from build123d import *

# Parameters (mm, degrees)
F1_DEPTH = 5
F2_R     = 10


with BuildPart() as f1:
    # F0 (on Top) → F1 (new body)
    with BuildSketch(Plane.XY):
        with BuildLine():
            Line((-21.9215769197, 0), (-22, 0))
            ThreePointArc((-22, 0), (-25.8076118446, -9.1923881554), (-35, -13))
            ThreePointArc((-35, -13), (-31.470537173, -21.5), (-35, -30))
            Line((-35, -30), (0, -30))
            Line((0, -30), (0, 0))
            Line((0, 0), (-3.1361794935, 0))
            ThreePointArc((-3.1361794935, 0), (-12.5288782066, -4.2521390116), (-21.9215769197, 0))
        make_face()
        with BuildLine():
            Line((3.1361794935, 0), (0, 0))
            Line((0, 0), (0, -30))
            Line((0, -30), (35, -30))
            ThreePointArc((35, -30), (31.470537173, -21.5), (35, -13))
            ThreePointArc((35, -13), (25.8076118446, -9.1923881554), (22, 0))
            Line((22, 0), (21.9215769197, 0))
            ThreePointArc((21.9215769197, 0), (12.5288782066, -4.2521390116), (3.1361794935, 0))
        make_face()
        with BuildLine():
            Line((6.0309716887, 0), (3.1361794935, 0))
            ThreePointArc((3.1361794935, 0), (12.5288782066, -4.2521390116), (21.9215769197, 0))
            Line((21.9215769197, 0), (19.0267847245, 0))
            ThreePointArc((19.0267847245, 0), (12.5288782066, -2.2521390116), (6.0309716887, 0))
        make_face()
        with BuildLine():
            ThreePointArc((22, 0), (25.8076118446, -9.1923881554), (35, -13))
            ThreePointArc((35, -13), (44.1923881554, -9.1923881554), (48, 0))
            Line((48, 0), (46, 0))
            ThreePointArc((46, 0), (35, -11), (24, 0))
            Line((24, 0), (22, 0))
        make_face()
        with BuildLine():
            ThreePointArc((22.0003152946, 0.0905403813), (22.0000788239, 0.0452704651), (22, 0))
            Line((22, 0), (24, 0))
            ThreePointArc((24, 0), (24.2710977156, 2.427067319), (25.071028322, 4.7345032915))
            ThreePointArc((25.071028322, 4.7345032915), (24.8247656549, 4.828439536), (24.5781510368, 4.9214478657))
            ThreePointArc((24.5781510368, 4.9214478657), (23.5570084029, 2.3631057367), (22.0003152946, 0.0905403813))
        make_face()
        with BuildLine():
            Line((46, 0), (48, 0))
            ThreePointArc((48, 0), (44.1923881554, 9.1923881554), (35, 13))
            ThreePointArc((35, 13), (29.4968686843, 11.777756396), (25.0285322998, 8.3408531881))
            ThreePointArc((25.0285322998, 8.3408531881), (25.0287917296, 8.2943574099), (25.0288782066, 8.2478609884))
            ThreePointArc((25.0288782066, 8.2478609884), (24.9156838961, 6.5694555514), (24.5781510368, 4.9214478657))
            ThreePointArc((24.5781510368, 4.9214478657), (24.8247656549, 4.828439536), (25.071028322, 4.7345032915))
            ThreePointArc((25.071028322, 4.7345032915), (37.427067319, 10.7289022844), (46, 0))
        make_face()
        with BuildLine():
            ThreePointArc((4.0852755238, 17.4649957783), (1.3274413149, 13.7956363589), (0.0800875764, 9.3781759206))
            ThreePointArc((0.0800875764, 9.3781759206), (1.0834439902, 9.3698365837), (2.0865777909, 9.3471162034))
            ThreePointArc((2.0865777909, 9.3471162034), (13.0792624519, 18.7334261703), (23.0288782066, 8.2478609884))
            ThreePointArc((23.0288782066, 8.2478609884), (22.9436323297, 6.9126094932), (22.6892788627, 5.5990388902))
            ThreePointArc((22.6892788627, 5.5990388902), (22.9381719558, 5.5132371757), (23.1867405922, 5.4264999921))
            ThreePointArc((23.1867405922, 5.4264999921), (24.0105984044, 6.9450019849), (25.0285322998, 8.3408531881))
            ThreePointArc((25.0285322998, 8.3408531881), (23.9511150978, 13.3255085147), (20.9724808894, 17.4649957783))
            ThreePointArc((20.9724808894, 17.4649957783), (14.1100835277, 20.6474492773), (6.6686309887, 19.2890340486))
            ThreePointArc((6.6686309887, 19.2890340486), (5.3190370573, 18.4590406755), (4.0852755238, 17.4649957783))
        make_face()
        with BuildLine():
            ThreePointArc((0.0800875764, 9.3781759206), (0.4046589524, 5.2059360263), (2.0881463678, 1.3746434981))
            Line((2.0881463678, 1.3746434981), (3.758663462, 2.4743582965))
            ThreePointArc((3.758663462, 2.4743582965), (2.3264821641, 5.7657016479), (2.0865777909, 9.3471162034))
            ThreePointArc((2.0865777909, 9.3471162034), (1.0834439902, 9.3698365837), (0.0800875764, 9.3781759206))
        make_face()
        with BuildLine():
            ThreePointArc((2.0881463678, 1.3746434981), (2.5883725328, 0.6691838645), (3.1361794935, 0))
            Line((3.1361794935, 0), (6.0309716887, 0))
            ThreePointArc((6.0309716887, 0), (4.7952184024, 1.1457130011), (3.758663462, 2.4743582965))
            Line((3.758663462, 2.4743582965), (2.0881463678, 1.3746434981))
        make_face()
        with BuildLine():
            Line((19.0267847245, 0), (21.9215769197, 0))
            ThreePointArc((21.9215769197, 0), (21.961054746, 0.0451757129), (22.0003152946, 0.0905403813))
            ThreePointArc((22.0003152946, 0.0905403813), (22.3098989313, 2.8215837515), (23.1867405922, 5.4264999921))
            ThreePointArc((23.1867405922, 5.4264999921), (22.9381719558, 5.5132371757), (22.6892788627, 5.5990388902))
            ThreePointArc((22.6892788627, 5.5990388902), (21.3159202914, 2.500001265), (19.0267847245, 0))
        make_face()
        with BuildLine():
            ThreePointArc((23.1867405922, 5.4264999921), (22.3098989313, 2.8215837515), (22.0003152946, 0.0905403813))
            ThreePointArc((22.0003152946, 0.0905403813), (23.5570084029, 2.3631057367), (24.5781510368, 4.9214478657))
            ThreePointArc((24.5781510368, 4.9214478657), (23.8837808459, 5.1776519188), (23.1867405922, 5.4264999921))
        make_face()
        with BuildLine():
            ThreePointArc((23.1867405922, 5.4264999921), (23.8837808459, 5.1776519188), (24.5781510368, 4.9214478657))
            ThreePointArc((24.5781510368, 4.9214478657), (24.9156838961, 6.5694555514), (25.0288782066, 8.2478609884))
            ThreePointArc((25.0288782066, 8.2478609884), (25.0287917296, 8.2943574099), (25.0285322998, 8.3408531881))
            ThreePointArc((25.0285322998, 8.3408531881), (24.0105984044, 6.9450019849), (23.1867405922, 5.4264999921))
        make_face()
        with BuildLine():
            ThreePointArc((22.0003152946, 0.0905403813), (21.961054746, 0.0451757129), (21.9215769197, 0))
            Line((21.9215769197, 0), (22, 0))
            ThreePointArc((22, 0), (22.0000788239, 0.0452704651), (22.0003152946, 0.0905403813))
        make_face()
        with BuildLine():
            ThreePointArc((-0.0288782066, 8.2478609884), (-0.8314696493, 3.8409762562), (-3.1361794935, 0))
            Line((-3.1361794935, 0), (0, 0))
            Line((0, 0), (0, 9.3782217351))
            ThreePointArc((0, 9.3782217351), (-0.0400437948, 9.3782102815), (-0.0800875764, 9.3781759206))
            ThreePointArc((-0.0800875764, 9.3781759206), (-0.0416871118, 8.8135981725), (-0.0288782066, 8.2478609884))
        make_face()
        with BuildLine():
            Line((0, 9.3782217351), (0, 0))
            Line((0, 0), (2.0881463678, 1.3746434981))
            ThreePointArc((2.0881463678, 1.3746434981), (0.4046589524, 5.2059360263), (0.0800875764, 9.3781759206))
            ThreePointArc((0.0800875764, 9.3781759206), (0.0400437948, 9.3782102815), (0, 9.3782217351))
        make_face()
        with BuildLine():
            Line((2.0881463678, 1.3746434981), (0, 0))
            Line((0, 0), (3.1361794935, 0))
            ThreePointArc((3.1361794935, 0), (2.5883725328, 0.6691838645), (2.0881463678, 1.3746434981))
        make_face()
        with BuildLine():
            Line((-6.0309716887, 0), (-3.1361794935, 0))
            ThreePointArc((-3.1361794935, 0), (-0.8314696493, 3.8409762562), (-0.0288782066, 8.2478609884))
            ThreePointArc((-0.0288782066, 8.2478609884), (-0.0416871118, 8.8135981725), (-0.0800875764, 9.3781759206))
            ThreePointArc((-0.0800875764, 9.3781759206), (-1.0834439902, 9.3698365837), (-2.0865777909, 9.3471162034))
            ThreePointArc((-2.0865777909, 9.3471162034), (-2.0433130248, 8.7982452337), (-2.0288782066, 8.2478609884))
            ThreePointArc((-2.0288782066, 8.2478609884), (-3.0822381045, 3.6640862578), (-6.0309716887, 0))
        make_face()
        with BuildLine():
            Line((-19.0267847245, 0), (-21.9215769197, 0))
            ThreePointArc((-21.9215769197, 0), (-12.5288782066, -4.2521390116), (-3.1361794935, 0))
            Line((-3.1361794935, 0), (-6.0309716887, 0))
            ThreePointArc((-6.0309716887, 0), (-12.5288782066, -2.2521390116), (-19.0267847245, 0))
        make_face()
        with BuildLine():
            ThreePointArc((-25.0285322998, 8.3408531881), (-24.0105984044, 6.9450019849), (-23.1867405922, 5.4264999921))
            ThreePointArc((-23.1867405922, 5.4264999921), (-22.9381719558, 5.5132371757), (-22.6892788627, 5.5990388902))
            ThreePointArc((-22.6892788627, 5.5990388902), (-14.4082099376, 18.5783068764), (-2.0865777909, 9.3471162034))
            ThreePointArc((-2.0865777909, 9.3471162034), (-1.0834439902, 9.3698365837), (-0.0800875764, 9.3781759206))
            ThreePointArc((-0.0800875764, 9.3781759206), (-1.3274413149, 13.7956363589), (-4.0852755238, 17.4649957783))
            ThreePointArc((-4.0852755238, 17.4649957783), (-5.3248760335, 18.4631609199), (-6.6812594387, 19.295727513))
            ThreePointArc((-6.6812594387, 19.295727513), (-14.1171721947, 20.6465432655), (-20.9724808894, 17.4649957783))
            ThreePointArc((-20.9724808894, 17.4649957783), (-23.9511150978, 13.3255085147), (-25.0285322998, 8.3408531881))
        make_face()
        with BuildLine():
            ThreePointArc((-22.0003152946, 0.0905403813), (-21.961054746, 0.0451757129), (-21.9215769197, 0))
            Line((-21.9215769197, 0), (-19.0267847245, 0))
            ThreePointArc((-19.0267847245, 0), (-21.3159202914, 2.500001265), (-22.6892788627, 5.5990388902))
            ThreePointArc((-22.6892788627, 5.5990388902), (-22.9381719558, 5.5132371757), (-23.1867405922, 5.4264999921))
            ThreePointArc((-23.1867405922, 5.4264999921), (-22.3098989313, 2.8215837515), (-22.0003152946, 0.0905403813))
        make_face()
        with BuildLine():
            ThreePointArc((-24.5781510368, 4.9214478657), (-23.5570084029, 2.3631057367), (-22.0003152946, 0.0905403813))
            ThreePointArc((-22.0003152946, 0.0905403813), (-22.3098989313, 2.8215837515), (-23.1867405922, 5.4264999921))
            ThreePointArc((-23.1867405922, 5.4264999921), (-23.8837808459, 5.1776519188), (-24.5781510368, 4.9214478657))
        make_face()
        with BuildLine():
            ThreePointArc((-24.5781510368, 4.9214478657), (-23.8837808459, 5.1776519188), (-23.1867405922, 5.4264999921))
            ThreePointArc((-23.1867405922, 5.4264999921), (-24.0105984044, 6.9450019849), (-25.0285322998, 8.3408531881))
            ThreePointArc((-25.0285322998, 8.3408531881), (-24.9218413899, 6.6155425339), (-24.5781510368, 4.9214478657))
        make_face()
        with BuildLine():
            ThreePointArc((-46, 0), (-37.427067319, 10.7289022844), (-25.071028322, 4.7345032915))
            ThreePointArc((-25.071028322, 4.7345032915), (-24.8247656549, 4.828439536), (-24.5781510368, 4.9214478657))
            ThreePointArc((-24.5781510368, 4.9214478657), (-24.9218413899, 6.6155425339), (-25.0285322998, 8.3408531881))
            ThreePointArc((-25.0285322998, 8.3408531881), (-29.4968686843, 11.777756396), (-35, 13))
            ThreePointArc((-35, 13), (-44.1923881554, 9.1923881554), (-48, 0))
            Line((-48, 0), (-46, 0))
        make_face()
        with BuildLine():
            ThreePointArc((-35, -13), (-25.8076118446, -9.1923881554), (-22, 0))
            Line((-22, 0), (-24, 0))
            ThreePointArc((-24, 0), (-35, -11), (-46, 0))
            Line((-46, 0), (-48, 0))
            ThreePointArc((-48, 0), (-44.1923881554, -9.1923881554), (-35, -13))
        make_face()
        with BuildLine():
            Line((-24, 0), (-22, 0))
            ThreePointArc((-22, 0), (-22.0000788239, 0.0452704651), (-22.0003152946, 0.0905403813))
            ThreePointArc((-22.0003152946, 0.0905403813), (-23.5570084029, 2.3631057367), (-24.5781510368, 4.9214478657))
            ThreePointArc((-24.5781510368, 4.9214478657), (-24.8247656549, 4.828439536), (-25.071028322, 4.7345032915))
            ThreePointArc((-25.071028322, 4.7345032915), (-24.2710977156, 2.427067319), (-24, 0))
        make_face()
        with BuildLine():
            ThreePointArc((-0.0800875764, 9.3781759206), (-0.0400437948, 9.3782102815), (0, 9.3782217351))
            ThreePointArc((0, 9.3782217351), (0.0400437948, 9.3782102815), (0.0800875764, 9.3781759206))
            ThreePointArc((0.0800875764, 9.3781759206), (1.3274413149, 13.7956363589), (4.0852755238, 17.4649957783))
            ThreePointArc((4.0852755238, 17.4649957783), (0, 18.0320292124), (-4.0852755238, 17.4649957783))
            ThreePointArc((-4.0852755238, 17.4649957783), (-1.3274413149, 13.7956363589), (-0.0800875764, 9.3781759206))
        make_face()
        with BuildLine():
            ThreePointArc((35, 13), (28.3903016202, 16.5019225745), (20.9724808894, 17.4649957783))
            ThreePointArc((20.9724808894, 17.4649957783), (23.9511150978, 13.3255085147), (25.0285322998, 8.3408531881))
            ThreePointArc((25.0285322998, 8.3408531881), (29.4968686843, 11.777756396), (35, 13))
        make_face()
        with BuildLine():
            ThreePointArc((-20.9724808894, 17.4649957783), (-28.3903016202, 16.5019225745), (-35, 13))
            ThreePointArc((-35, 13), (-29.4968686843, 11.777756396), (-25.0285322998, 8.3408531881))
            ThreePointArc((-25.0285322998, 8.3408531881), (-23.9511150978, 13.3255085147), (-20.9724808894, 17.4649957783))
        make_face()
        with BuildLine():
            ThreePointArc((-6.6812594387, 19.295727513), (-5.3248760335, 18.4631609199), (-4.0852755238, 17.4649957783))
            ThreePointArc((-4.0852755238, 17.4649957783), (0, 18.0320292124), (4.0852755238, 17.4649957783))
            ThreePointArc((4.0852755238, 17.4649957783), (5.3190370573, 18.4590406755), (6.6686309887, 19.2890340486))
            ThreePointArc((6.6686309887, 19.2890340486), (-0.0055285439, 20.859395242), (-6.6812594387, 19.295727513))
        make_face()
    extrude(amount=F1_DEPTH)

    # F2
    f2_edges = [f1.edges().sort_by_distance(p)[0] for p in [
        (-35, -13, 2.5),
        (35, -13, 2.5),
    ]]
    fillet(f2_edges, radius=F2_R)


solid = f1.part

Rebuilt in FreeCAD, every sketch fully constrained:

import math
import FreeCAD as App
import Part
import Sketcher
from FreeCAD import Vector


def edges_at(feature, points):
    """Names of the edges that pass closest to the given points."""
    edges = feature.Shape.Edges
    near = lambda p: min(range(len(edges)), key=lambda i: edges[i].distToShape(Part.Vertex(*p))[0])
    return sorted({f"Edge{near(p) + 1}" for p in points})

doc = App.newDocument("Part")
body = doc.addObject("PartDesign::Body", "Body")

# Sketch on XY plane
sketch1 = body.newObject("Sketcher::SketchObject", "Sketch")
sketch1.AttachmentSupport = (doc.getObject("XY_Plane"), [""])
sketch1.MapMode = "FlatFace"
sketch1.addGeometry(Part.ArcOfCircle(Part.Circle(Vector(12.53, 8.25, 0), Vector(0, 0, 1), 12.5), math.radians(48), math.radians(118)), False)
sketch1.addGeometry(Part.ArcOfCircle(Part.Circle(Vector(-0.01, 5.86, 0), Vector(0, 0, 1), 15), math.radians(64), math.radians(116)), False)
sketch1.addGeometry(Part.ArcOfCircle(Part.Circle(Vector(-12.53, 8.25, 0), Vector(0, 0, 1), 12.5), math.radians(62), math.radians(132)), False)
sketch1.addGeometry(Part.ArcOfCircle(Part.Circle(Vector(-22.02, -3.51, 0), Vector(0, 0, 1), 21), math.radians(87), math.radians(128)), False)
sketch1.addGeometry(Part.ArcOfCircle(Part.Circle(Vector(-35, 0, 0), Vector(0, 0, 1), 13), math.radians(90), math.radians(180)), False)
sketch1.addGeometry(Part.ArcOfCircle(Part.Circle(Vector(-35, 0, 0), Vector(0, 0, 1), 13), math.radians(180), math.radians(270)), False)
sketch1.addGeometry(Part.ArcOfCircle(Part.Circle(Vector(-43.47, -21.5, 0), Vector(0, 0, 1), 12), math.radians(-45), math.radians(45)), False)
sketch1.addGeometry(Part.LineSegment(Vector(-35, -30, 0), Vector(35, -30, 0)), False)
sketch1.addGeometry(Part.ArcOfCircle(Part.Circle(Vector(43.47, -21.5, 0), Vector(0, 0, 1), 12), math.radians(135), math.radians(225)), False)
sketch1.addGeometry(Part.ArcOfCircle(Part.Circle(Vector(35, 0, 0), Vector(0, 0, 1), 13), math.radians(-90), math.radians(0)), False)
sketch1.addGeometry(Part.ArcOfCircle(Part.Circle(Vector(35, 0, 0), Vector(0, 0, 1), 13), math.radians(0), math.radians(90)), False)
sketch1.addGeometry(Part.ArcOfCircle(Part.Circle(Vector(22.02, -3.51, 0), Vector(0, 0, 1), 21), math.radians(52), math.radians(93)), False)
sketch1.addGeometry(Part.ArcOfCircle(Part.Circle(Vector(-35, 0, 0), Vector(0, 0, 1), 11), math.radians(25), math.radians(180)), False)
sketch1.addGeometry(Part.ArcOfCircle(Part.Circle(Vector(-35, 0, 0), Vector(0, 0, 1), 11), math.radians(0), math.radians(25)), False)
sketch1.addGeometry(Part.ArcOfCircle(Part.Circle(Vector(-35, 0, 0), Vector(0, 0, 1), 11), math.radians(180), math.radians(360)), False)
sketch1.addGeometry(Part.ArcOfCircle(Part.Circle(Vector(-12.53, 8.25, 0), Vector(0, 0, 1), 12.5), math.radians(-139.26), math.radians(-138.71)), False)
sketch1.addGeometry(Part.LineSegment(Vector(-21.92, 0, 0), Vector(-22, 0, 0)), False)
sketch1.addGeometry(Part.ArcOfCircle(Part.Circle(Vector(-35, 0, 0), Vector(0, 0, 1), 13), math.radians(0), math.radians(0.4)), False)
sketch1.addGeometry(Part.ArcOfCircle(Part.Circle(Vector(-12.53, 8.25, 0), Vector(0, 0, 1), 10.5), math.radians(6), math.radians(195)), False)
sketch1.addGeometry(Part.ArcOfCircle(Part.Circle(Vector(-12.53, 8.25, 0), Vector(0, 0, 1), 10.5), math.radians(0), math.radians(6.01)), False)
sketch1.addGeometry(Part.ArcOfCircle(Part.Circle(Vector(-12.53, 8.25, 0), Vector(0, 0, 1), 10.5), math.radians(-52), math.radians(0)), False)
sketch1.addGeometry(Part.ArcOfCircle(Part.Circle(Vector(-12.53, 8.25, 0), Vector(0, 0, 1), 10.5), math.radians(-128), math.radians(-52)), False)
sketch1.addGeometry(Part.ArcOfCircle(Part.Circle(Vector(-12.53, 8.25, 0), Vector(0, 0, 1), 10.5), math.radians(-165), math.radians(-128)), False)
sketch1.addGeometry(Part.ArcOfCircle(Part.Circle(Vector(35, 0, 0), Vector(0, 0, 1), 11), math.radians(180), math.radians(360)), False)
sketch1.addGeometry(Part.ArcOfCircle(Part.Circle(Vector(35, 0, 0), Vector(0, 0, 1), 11), math.radians(155), math.radians(180)), False)
sketch1.addGeometry(Part.ArcOfCircle(Part.Circle(Vector(35, 0, 0), Vector(0, 0, 1), 11), math.radians(0), math.radians(155)), False)
sketch1.addGeometry(Part.ArcOfCircle(Part.Circle(Vector(12.53, 8.25, 0), Vector(0, 0, 1), 10.5), math.radians(-14.61), math.radians(0)), False)
sketch1.addGeometry(Part.ArcOfCircle(Part.Circle(Vector(12.53, 8.25, 0), Vector(0, 0, 1), 10.5), math.radians(-52), math.radians(-15)), False)
sketch1.addGeometry(Part.ArcOfCircle(Part.Circle(Vector(12.53, 8.25, 0), Vector(0, 0, 1), 10.5), math.radians(-128), math.radians(-52)), False)
sketch1.addGeometry(Part.ArcOfCircle(Part.Circle(Vector(12.53, 8.25, 0), Vector(0, 0, 1), 10.5), math.radians(-146.64), math.radians(-128.23)), False)
sketch1.addGeometry(Part.ArcOfCircle(Part.Circle(Vector(12.53, 8.25, 0), Vector(0, 0, 1), 10.5), math.radians(174), math.radians(213)), False)
sketch1.addGeometry(Part.ArcOfCircle(Part.Circle(Vector(12.53, 8.25, 0), Vector(0, 0, 1), 10.5), math.radians(0), math.radians(174)), False)
sketch1.addConstraint(Sketcher.Constraint("Coincident", 0, 2, 1, 1))
sketch1.addConstraint(Sketcher.Constraint("Coincident", 1, 2, 2, 1))
sketch1.addConstraint(Sketcher.Constraint("Coincident", 2, 2, 3, 1))
sketch1.addConstraint(Sketcher.Constraint("Coincident", 3, 2, 4, 1))
sketch1.addConstraint(Sketcher.Constraint("Tangent", 4, 2, 5, 1))
sketch1.addConstraint(Sketcher.Constraint("Coincident", 5, 2, 6, 2))
sketch1.addConstraint(Sketcher.Constraint("Coincident", 6, 1, 7, 1))
sketch1.addConstraint(Sketcher.Constraint("Coincident", 7, 2, 8, 2))
sketch1.addConstraint(Sketcher.Constraint("Coincident", 8, 1, 9, 1))
sketch1.addConstraint(Sketcher.Constraint("Tangent", 9, 2, 10, 1))
sketch1.addConstraint(Sketcher.Constraint("Coincident", 10, 2, 11, 1))
sketch1.addConstraint(Sketcher.Constraint("Coincident", 11, 2, 0, 1))
sketch1.addConstraint(Sketcher.Constraint("Tangent", 12, 1, 13, 2))
sketch1.addConstraint(Sketcher.Constraint("Tangent", 13, 1, 14, 2))
sketch1.addConstraint(Sketcher.Constraint("Tangent", 14, 1, 12, 2))
sketch1.addConstraint(Sketcher.Constraint("Coincident", 15, 2, 16, 1))
sketch1.addConstraint(Sketcher.Constraint("Coincident", 16, 2, 17, 1))
sketch1.addConstraint(Sketcher.Constraint("Coincident", 17, 2, 15, 1))
sketch1.addConstraint(Sketcher.Constraint("Tangent", 18, 1, 19, 2))
sketch1.addConstraint(Sketcher.Constraint("Tangent", 19, 1, 20, 2))
sketch1.addConstraint(Sketcher.Constraint("Tangent", 20, 1, 21, 2))
sketch1.addConstraint(Sketcher.Constraint("Tangent", 21, 1, 22, 2))
sketch1.addConstraint(Sketcher.Constraint("Tangent", 22, 1, 18, 2))
sketch1.addConstraint(Sketcher.Constraint("Tangent", 23, 1, 24, 2))
sketch1.addConstraint(Sketcher.Constraint("Tangent", 24, 1, 25, 2))
sketch1.addConstraint(Sketcher.Constraint("Tangent", 25, 1, 23, 2))
sketch1.addConstraint(Sketcher.Constraint("Tangent", 26, 1, 27, 2))
sketch1.addConstraint(Sketcher.Constraint("Tangent", 27, 1, 28, 2))
sketch1.addConstraint(Sketcher.Constraint("Tangent", 28, 1, 29, 2))
sketch1.addConstraint(Sketcher.Constraint("Tangent", 29, 1, 30, 2))
sketch1.addConstraint(Sketcher.Constraint("Tangent", 30, 1, 31, 2))
sketch1.addConstraint(Sketcher.Constraint("Tangent", 31, 1, 26, 2))
sketch1.addConstraint(Sketcher.Constraint("Horizontal", 7))
sketch1.addConstraint(Sketcher.Constraint("Horizontal", 16))
sketch1.addConstraint(Sketcher.Constraint("Coincident", 12, 3, 4, 3))
sketch1.addConstraint(Sketcher.Constraint("Coincident", 15, 3, 2, 3))
sketch1.addConstraint(Sketcher.Constraint("Coincident", 17, 3, 4, 3))
sketch1.addConstraint(Sketcher.Constraint("Coincident", 18, 3, 2, 3))
sketch1.addConstraint(Sketcher.Constraint("Coincident", 20, 3, 2, 3))
sketch1.addConstraint(Sketcher.Constraint("Coincident", 23, 3, 9, 3))
sketch1.addConstraint(Sketcher.Constraint("Coincident", 26, 3, 0, 3))
sketch1.addConstraint(Sketcher.Constraint("Coincident", 28, 3, 0, 3))
sketch1.addConstraint(Sketcher.Constraint("Equal", 0, 2))
sketch1.addConstraint(Sketcher.Constraint("Equal", 4, 5))
sketch1.addConstraint(Sketcher.Constraint("Equal", 6, 8))
sketch1.addConstraint(Sketcher.Constraint("Equal", 5, 9))
sketch1.addConstraint(Sketcher.Constraint("Equal", 9, 10))
sketch1.addConstraint(Sketcher.Constraint("Equal", 3, 11))
sketch1.addConstraint(Sketcher.Constraint("Equal", 2, 15))
sketch1.addConstraint(Sketcher.Constraint("Equal", 14, 23))
sketch1.addConstraint(Sketcher.Constraint("Equal", 22, 26))
sketch1.addConstraint(Sketcher.Constraint("Equal", 28, 29))
sketch1.addConstraint(Sketcher.Constraint("Symmetric", 4, 3, 9, 3, -1, 1))
sketch1.addConstraint(Sketcher.Constraint("Symmetric", 21, 1, 27, 1, -1, 1))
sketch1.addConstraint(Sketcher.Constraint("Symmetric", 20, 1, 28, 1, -1, 1))
sketch1.addConstraint(Sketcher.Constraint("Symmetric", 0, 3, 2, 3, -2))
sketch1.addConstraint(Sketcher.Constraint("Symmetric", 6, 3, 8, 3, -2))
sketch1.addConstraint(Sketcher.Constraint("Symmetric", 3, 3, 11, 3, -2))
sketch1.addConstraint(Sketcher.Constraint("Symmetric", 12, 1, 24, 1, -2))
sketch1.addConstraint(Sketcher.Constraint("PointOnObject", 4, 2, -1))
sketch1.addConstraint(Sketcher.Constraint("PointOnObject", 9, 2, -1))
sketch1.addConstraint(Sketcher.Constraint("PointOnObject", 13, 1, -1))
sketch1.addConstraint(Sketcher.Constraint("PointOnObject", 14, 1, -1))
sketch1.addConstraint(Sketcher.Constraint("PointOnObject", 15, 2, -1))
sketch1.addConstraint(Sketcher.Constraint("PointOnObject", 23, 1, -1))
sketch1.addConstraint(Sketcher.Constraint("PointOnObject", 25, 1, -1))
sketch1.addConstraint(Sketcher.Constraint("Horizontal", 31, 3, 19, 1))
sketch1.addConstraint(Sketcher.Constraint("Horizontal", 22, 1, 26, 1))
sketch1.addConstraint(Sketcher.Constraint("Horizontal", 18, 1, 30, 1))
sketch1.addConstraint(Sketcher.Constraint("Horizontal", 19, 1, 31, 1))
sketch1.addConstraint(Sketcher.Constraint("Vertical", 14, 3, 3, 2))
sketch1.addConstraint(Sketcher.Constraint("Vertical", 3, 2, 5, 2))
sketch1.addConstraint(Sketcher.Constraint("Vertical", 5, 2, 6, 1))
sketch1.addConstraint(Sketcher.Constraint("Radius", 1, 15.0))
sketch1.addConstraint(Sketcher.Constraint("Radius", 3, 21.0))
sketch1.addConstraint(Sketcher.Constraint("Radius", 4, 13.0))
sketch1.addConstraint(Sketcher.Constraint("Radius", 6, 12.0))
sketch1.addConstraint(Sketcher.Constraint("Radius", 12, 11.0))
sketch1.addConstraint(Sketcher.Constraint("Radius", 0, 12.5))
sketch1.addConstraint(Sketcher.Constraint("Radius", 18, 10.5))
sketch1.addConstraint(Sketcher.Constraint("DistanceX", 7, 1, 7, 2, 70.0))
sketch1.addConstraint(Sketcher.Constraint("DistanceY", 6, 1, -1, 1, 30.0))
sketch1.addConstraint(Sketcher.Constraint("DistanceX", 16, 2, -1, 1, 22.0))
sketch1.addConstraint(Sketcher.Constraint("DistanceX", 16, 2, 16, 1, 0.078423))
sketch1.addConstraint(Sketcher.Constraint("DistanceX", -1, 1, 0, 3, 12.528878))
sketch1.addConstraint(Sketcher.Constraint("DistanceX", 1, 3, -1, 1, 0.013049))
sketch1.addConstraint(Sketcher.Constraint("DistanceX", 3, 3, -1, 1, 22.02083))
sketch1.addConstraint(Sketcher.Constraint("DistanceX", -1, 1, 0, 2, 6.668631))
sketch1.addConstraint(Sketcher.Constraint("DistanceX", 12, 1, -1, 1, 25.071028))
sketch1.addConstraint(Sketcher.Constraint("DistanceX", 22, 1, -1, 1, 22.689279))
sketch1.addConstraint(Sketcher.Constraint("DistanceY", -1, 1, 29, 1, 2.474358))
sketch1.addConstraint(Sketcher.Constraint("DistanceX", 18, 1, -1, 1, 2.086578))
pad1 = body.newObject("PartDesign::Pad", "Pad")
pad1.Profile = sketch1
pad1.Length = 5
doc.recompute()

fillet = body.newObject("PartDesign::Fillet", "Fillet")
fillet.Base = (pad1, edges_at(pad1, [(-35, -13, 2.5), (35, -13, 2.5)]))
fillet.Radius = 10

doc.recompute()
